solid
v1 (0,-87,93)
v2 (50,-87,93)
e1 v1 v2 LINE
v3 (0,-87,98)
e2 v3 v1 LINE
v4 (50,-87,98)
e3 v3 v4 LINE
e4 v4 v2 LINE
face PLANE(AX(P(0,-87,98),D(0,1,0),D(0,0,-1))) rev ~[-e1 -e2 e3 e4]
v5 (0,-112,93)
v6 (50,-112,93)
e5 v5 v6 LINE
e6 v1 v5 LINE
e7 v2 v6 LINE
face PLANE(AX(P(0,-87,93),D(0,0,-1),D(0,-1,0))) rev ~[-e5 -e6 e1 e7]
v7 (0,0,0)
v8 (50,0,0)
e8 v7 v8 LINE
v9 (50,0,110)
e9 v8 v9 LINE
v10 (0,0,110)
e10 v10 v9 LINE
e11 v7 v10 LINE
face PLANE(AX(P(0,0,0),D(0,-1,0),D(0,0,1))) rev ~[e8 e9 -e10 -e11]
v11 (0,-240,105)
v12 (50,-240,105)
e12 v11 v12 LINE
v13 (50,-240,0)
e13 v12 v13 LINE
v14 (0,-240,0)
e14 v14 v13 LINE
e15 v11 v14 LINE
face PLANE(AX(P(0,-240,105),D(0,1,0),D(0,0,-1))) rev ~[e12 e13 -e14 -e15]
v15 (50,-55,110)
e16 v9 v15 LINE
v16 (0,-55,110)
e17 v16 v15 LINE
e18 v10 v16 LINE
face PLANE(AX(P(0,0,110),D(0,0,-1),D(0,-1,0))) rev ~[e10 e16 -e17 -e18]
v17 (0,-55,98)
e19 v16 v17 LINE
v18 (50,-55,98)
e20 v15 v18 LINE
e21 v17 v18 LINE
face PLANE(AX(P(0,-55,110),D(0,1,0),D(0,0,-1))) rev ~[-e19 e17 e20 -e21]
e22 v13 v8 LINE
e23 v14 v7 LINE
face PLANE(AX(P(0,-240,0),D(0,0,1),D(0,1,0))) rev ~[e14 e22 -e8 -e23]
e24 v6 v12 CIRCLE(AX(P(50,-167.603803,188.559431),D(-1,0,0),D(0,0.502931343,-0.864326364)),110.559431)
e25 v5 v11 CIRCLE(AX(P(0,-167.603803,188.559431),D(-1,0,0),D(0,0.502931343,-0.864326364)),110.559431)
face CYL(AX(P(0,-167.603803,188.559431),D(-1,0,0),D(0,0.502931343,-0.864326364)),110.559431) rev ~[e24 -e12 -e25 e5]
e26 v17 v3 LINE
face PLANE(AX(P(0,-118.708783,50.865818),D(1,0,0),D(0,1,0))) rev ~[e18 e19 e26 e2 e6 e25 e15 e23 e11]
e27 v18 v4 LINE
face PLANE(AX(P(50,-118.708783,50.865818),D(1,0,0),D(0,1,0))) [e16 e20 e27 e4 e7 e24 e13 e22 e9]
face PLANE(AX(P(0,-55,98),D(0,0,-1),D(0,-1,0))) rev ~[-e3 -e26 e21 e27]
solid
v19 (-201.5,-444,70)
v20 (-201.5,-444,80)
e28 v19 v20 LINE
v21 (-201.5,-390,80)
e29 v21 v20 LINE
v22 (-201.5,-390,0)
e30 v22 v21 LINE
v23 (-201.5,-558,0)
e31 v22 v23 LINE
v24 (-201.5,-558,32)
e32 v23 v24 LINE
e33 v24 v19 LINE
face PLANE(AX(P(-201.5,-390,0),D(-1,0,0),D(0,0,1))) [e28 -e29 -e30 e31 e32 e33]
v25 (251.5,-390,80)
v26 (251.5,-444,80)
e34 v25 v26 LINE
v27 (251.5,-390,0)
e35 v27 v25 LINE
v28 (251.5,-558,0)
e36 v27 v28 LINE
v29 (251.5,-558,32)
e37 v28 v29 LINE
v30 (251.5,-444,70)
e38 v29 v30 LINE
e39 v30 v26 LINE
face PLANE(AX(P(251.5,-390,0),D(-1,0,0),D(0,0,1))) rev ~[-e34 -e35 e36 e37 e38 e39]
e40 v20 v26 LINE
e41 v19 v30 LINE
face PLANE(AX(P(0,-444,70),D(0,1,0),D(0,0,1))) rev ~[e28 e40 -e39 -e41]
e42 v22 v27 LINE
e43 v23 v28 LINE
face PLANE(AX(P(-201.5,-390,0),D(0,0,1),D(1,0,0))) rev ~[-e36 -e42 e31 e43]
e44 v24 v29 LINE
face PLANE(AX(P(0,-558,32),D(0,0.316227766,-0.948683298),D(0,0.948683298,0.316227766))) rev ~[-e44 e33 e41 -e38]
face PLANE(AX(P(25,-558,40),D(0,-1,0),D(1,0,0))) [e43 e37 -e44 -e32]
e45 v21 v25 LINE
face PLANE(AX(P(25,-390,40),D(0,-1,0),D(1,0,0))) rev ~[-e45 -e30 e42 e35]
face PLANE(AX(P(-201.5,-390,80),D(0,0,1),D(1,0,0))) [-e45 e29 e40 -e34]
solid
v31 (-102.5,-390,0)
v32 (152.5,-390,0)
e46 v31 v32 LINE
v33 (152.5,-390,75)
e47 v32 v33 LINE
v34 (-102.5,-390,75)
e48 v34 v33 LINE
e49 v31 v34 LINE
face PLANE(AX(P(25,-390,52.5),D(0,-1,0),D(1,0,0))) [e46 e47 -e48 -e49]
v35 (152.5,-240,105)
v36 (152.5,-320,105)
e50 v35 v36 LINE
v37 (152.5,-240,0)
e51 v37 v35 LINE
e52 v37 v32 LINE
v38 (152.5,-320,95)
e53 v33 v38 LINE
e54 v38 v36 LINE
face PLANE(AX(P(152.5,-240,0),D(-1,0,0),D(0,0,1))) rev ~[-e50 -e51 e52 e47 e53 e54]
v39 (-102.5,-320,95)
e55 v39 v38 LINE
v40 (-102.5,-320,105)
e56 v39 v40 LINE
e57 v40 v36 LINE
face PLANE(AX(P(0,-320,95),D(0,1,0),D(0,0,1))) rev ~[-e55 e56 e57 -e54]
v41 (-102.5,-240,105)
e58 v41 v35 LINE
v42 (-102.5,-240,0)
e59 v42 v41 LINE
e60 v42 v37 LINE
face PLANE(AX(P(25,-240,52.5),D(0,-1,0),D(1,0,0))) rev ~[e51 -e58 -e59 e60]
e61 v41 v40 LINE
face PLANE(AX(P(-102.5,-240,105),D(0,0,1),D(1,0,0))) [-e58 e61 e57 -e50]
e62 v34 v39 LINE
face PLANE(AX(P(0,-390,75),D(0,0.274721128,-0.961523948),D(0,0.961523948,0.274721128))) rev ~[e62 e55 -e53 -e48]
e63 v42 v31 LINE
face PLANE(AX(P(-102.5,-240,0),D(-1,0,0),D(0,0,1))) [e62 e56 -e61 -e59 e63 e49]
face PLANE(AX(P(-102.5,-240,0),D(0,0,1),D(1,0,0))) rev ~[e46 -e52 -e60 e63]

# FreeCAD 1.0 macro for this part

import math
import FreeCAD as App
import Part
import Sketcher
from FreeCAD import Vector


def add_polygon(sketch, points):
    """Adds a closed chain of lines whose ends are joined by coincident constraints."""
    first, n = sketch.GeometryCount, len(points)
    for a, b in zip(points, points[1:] + points[:1]):
        sketch.addGeometry(Part.LineSegment(App.Vector(*a, 0), App.Vector(*b, 0)), False)
    for i in range(n):
        sketch.addConstraint(Sketcher.Constraint("Coincident", first + i, 2, first + (i + 1) % n, 1))

doc = App.newDocument("Part")
body = doc.addObject("PartDesign::Body", "Body")

# Sketch on YZ plane
sketch1 = body.newObject("Sketcher::SketchObject", "Sketch")
sketch1.AttachmentSupport = (doc.getObject("YZ_Plane"), [""])
sketch1.MapMode = "FlatFace"
sketch1.addGeometry([
    Part.LineSegment(Vector(-240, 0, 0), Vector(0, 0, 0)),  # 0
    Part.LineSegment(Vector(0, 0, 0), Vector(0, 110, 0)),  # 1
    Part.LineSegment(Vector(0, 110, 0), Vector(-55, 110, 0)),  # 2
    Part.LineSegment(Vector(-55, 110, 0), Vector(-55, 98, 0)),  # 3
    Part.LineSegment(Vector(-55, 98, 0), Vector(-87, 98, 0)),  # 4
    Part.LineSegment(Vector(-87, 98, 0), Vector(-87, 93, 0)),  # 5
    Part.LineSegment(Vector(-87, 93, 0), Vector(-112, 93, 0)),  # 6
    Part.ArcOfCircle(Part.Circle(Vector(-167.603803, 188.559431, 0), Vector(0, 0, 1), 110.559431), math.radians(-130.905776), math.radians(-59.805874)),  # 7
    Part.LineSegment(Vector(-240, 105, 0), Vector(-240, 0, 0)),  # 8
], False)
sketch1.addConstraint([
    Sketcher.Constraint("Coincident", 0, 2, 1, 1),
    Sketcher.Constraint("Coincident", 1, 2, 2, 1),
    Sketcher.Constraint("Coincident", 2, 2, 3, 1),
    Sketcher.Constraint("Coincident", 3, 2, 4, 1),
    Sketcher.Constraint("Coincident", 4, 2, 5, 1),
    Sketcher.Constraint("Coincident", 5, 2, 6, 1),
    Sketcher.Constraint("Coincident", 6, 2, 7, 2),
    Sketcher.Constraint("Coincident", 7, 1, 8, 1),
    Sketcher.Constraint("Coincident", 8, 2, 0, 1),
    Sketcher.Constraint("Horizontal", 0),
    Sketcher.Constraint("Vertical", 1),
    Sketcher.Constraint("Horizontal", 2),
    Sketcher.Constraint("Vertical", 3),
    Sketcher.Constraint("Horizontal", 4),
    Sketcher.Constraint("Vertical", 5),
    Sketcher.Constraint("Horizontal", 6),
    Sketcher.Constraint("Vertical", 8),
    Sketcher.Constraint("Coincident", 0, 2, -1, 1),
    Sketcher.Constraint("DistanceX", 0, 1, 0, 2, 240.0),
    Sketcher.Constraint("DistanceX", 2, 2, 2, 1, 55.0),
    Sketcher.Constraint("DistanceX", 4, 2, 4, 1, 32.0),
    Sketcher.Constraint("DistanceX", 6, 2, 6, 1, 25.0),
    Sketcher.Constraint("DistanceY", 1, 1, 1, 2, 110.0),
    Sketcher.Constraint("DistanceY", 3, 2, 3, 1, 12.0),
    Sketcher.Constraint("DistanceY", 5, 2, 5, 1, 5.0),
    Sketcher.Constraint("DistanceY", 8, 2, 8, 1, 105.0),
    Sketcher.Constraint("Radius", 7, 110.559431),
])
pad1 = body.newObject("PartDesign::Pad", "Pad")
pad1.Profile = sketch1
pad1.Length = 50
body2 = doc.addObject("PartDesign::Body", "Body001")

# Sketch on XZ plane
sketch2 = body2.newObject("Sketcher::SketchObject", "Sketch001")
sketch2.AttachmentSupport = (doc.getObject("XZ_Plane001"), [""])
sketch2.MapMode = "FlatFace"
sketch2.AttachmentOffset = App.Placement(Vector(0, 0, 240), App.Rotation())
add_polygon(sketch2, [(-102.5, 105), (-102.5, 0), (152.5, 0), (152.5, 105)])  # lines 0-3
sketch2.addConstraint([
    Sketcher.Constraint("Vertical", 0),
    Sketcher.Constraint("Horizontal", 1),
    Sketcher.Constraint("Vertical", 2),
    Sketcher.Constraint("Horizontal", 3),
    Sketcher.Constraint("PointOnObject", 0, 2, -1),
    Sketcher.Constraint("DistanceX", 1, 1, 1, 2, 255.0),
    Sketcher.Constraint("DistanceY", 0, 2, 0, 1, 105.0),
    Sketcher.Constraint("DistanceX", 0, 2, -1, 1, 102.5),
])
pad2 = body2.newObject("PartDesign::Pad", "Pad001")
pad2.Profile = sketch2
pad2.Length = 150

# Sketch on YZ plane
sketch3 = body2.newObject("Sketcher::SketchObject", "Sketch002")
sketch3.AttachmentSupport = (doc.getObject("YZ_Plane001"), [""])
sketch3.MapMode = "FlatFace"
add_polygon(sketch3, [(-320, 105), (-390, 105), (-390, 75), (-320, 95)])  # lines 0-3
sketch3.addConstraint([
    Sketcher.Constraint("Horizontal", 0),
    Sketcher.Constraint("Vertical", 1),
    Sketcher.Constraint("Vertical", 3),
    Sketcher.Constraint("DistanceX", 0, 2, 0, 1, 70.0),
    Sketcher.Constraint("DistanceY", 1, 2, 1, 1, 30.0),
    Sketcher.Constraint("DistanceY", 3, 1, 3, 2, 10.0),
    Sketcher.Constraint("DistanceX", 0, 2, -1, 1, 390.0),
    Sketcher.Constraint("DistanceY", -1, 1, 0, 2, 105.0),
])
pocket1 = body2.newObject("PartDesign::Pocket", "Pocket")
pocket1.Profile = sketch3
pocket1.Type = "ThroughAll"
pocket1.Midplane = True
body3 = doc.addObject("PartDesign::Body", "Body002")

# Sketch on XZ plane
sketch4 = body3.newObject("Sketcher::SketchObject", "Sketch003")
sketch4.AttachmentSupport = (doc.getObject("XZ_Plane002"), [""])
sketch4.MapMode = "FlatFace"
sketch4.AttachmentOffset = App.Placement(Vector(0, 0, 390), App.Rotation())
add_polygon(sketch4, [(-201.5, 80), (-201.5, 0), (251.5, 0), (251.5, 80)])  # lines 0-3
sketch4.addConstraint([
    Sketcher.Constraint("Vertical", 0),
    Sketcher.Constraint("Horizontal", 1),
    Sketcher.Constraint("Vertical", 2),
    Sketcher.Constraint("Horizontal", 3),
    Sketcher.Constraint("PointOnObject", 0, 2, -1),
    Sketcher.Constraint("DistanceX", 1, 1, 1, 2, 453.0),
    Sketcher.Constraint("DistanceY", 0, 2, 0, 1, 80.0),
    Sketcher.Constraint("DistanceX", 0, 2, -1, 1, 201.5),
])
pad3 = body3.newObject("PartDesign::Pad", "Pad002")
pad3.Profile = sketch4
pad3.Length = 168

# Sketch on YZ plane
sketch5 = body3.newObject("Sketcher::SketchObject", "Sketch004")
sketch5.AttachmentSupport = (doc.getObject("YZ_Plane002"), [""])
sketch5.MapMode = "FlatFace"
add_polygon(sketch5, [(-444, 80), (-558, 80), (-558, 32), (-444, 70)])  # lines 0-3
sketch5.addConstraint([
    Sketcher.Constraint("Horizontal", 0),
    Sketcher.Constraint("Vertical", 1),
    Sketcher.Constraint("Vertical", 3),
    Sketcher.Constraint("DistanceX", 0, 2, 0, 1, 114.0),
    Sketcher.Constraint("DistanceY", 1, 2, 1, 1, 48.0),
    Sketcher.Constraint("DistanceY", 3, 1, 3, 2, 10.0),
    Sketcher.Constraint("DistanceX", 0, 2, -1, 1, 558.0),
    Sketcher.Constraint("DistanceY", -1, 1, 0, 2, 80.0),
])
pocket2 = body3.newObject("PartDesign::Pocket", "Pocket001")
pocket2.Profile = sketch5
pocket2.Type = "ThroughAll"
pocket2.Midplane = True

doc.recompute()
